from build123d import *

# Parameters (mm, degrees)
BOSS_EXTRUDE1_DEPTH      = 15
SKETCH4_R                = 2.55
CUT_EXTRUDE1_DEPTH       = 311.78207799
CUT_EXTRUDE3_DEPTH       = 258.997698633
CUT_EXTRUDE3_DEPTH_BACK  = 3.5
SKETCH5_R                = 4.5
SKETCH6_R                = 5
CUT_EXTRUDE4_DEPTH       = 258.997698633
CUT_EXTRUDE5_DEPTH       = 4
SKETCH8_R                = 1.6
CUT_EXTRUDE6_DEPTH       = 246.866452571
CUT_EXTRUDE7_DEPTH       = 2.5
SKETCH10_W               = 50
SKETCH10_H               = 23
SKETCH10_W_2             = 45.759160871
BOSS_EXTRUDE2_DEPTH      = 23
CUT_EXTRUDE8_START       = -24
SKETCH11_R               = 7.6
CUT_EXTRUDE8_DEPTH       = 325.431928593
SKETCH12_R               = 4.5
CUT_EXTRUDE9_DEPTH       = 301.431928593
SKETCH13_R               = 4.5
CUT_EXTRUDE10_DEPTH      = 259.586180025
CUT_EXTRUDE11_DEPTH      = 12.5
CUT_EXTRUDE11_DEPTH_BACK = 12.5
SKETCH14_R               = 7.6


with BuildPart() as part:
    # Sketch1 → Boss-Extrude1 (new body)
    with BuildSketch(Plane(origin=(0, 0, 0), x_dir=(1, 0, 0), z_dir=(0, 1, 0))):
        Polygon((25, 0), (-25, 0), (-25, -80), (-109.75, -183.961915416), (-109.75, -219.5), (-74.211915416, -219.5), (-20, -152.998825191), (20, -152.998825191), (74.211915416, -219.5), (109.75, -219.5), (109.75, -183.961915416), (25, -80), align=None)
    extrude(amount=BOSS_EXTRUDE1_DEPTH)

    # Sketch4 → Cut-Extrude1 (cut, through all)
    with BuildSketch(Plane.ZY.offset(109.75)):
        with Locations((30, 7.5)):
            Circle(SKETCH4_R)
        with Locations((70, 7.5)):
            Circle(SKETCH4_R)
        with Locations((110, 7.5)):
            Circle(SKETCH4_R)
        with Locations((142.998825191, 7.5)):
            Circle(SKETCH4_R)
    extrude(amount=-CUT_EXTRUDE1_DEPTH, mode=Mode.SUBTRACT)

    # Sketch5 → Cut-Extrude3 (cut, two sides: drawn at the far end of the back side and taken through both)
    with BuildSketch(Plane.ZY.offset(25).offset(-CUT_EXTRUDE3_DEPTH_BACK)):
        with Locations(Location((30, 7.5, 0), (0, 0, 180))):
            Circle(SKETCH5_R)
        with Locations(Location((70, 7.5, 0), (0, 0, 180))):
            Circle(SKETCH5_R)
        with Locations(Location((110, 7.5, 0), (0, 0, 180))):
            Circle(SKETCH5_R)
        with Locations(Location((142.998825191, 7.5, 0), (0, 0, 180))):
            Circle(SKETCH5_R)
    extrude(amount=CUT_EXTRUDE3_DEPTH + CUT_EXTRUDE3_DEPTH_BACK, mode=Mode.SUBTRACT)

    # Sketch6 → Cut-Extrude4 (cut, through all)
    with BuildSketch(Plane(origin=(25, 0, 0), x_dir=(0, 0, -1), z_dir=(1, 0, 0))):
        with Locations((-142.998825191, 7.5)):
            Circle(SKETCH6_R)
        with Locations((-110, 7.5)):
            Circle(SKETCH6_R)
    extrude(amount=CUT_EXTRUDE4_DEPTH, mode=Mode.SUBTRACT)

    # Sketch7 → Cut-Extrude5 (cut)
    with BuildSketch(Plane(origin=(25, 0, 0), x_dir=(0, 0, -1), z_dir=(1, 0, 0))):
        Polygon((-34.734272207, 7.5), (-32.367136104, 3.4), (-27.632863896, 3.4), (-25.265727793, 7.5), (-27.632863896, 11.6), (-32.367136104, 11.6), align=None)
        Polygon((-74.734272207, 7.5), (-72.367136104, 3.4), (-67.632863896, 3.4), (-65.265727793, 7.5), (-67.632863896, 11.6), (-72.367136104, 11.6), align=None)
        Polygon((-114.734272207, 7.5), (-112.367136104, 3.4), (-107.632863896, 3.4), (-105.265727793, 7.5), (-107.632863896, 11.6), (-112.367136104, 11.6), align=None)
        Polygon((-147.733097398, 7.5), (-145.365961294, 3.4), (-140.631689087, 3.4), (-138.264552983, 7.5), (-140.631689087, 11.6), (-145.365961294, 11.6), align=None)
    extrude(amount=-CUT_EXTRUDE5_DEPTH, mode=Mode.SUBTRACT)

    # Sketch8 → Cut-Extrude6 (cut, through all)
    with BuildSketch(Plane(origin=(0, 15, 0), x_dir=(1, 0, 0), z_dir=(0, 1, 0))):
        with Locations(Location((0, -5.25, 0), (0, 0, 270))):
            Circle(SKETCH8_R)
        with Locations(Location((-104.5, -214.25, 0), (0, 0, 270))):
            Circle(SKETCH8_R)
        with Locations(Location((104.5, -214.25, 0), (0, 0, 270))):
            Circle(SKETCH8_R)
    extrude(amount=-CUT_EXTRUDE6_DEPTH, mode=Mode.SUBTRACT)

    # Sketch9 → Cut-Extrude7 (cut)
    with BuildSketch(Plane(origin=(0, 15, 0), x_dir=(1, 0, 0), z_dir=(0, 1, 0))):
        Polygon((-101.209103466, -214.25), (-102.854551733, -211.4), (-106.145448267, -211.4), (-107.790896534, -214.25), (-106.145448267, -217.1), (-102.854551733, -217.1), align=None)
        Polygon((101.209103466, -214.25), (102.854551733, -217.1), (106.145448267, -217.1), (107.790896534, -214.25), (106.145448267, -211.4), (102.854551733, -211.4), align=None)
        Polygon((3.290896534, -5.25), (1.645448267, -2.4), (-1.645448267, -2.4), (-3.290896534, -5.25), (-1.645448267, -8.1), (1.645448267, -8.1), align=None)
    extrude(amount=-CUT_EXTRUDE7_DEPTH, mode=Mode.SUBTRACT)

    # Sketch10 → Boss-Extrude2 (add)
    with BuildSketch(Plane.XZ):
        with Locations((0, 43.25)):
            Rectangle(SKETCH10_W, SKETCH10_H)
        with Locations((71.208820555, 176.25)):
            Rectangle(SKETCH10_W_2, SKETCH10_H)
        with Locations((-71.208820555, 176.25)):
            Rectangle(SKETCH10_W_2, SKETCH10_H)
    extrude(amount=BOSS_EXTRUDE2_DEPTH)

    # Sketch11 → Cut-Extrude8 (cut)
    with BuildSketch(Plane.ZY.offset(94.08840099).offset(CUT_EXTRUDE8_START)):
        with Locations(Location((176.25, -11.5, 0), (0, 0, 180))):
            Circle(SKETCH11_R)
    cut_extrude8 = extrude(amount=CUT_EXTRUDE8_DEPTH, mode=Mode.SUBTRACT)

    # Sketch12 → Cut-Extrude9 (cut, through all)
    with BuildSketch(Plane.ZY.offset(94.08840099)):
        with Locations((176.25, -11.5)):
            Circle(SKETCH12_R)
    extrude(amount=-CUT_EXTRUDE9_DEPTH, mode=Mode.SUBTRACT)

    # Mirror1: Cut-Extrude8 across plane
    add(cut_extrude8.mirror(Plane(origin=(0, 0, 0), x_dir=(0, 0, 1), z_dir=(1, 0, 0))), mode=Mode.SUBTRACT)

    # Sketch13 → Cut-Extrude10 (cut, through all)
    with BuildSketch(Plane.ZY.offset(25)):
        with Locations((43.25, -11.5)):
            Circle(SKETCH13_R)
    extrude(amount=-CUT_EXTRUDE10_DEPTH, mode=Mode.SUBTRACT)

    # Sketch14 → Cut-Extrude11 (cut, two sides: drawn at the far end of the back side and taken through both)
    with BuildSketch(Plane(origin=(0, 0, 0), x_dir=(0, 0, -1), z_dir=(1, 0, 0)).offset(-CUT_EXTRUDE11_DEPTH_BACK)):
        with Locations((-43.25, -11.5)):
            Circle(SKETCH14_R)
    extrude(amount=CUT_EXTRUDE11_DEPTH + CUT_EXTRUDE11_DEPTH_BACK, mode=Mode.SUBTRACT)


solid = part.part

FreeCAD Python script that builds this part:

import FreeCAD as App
import Part
import Sketcher
from FreeCAD import Vector
Q = App.Units.Quantity


def add_polygon(sketch, points):
    """Adds a closed chain of lines whose ends are joined by coincident constraints."""
    first, n = sketch.GeometryCount, len(points)
    for a, b in zip(points, points[1:] + points[:1]):
        sketch.addGeometry(Part.LineSegment(App.Vector(*a, 0), App.Vector(*b, 0)), False)
    for i in range(n):
        sketch.addConstraint(Sketcher.Constraint("Coincident", first + i, 2, first + (i + 1) % n, 1))

doc = App.newDocument("Part")
body = doc.addObject("PartDesign::Body", "Body")

# Sketch on XZ plane
sketch1 = body.newObject("Sketcher::SketchObject", "Sketch")
sketch1.AttachmentSupport = (doc.getObject("XZ_Plane"), [""])
sketch1.MapMode = "FlatFace"
add_polygon(sketch1, [(25, 0), (-25, 0), (-25, 80), (-110, 184), (-110, 220), (-74, 220), (-20, 153), (20, 153), (74, 220), (110, 220), (110, 184), (25, 80)])  # lines 0-11
sketch1.addConstraint([
    Sketcher.Constraint("Horizontal", 0),
    Sketcher.Constraint("Vertical", 1),
    Sketcher.Constraint("Vertical", 3),
    Sketcher.Constraint("Horizontal", 4),
    Sketcher.Constraint("Horizontal", 6),
    Sketcher.Constraint("Horizontal", 8),
    Sketcher.Constraint("Vertical", 9),
    Sketcher.Constraint("Vertical", 11),
    Sketcher.Constraint("Symmetric", 0, 2, 11, 2, -1, 1),
    Sketcher.Constraint("Symmetric", 4, 2, 7, 2, -2),
    Sketcher.Constraint("Symmetric", 2, 2, 9, 2, -2),
    Sketcher.Constraint("Parallel", 2, 5),
    Sketcher.Constraint("Parallel", 7, 10),
    Sketcher.Constraint("Horizontal", 1, 2, 10, 2),
    Sketcher.Constraint("Equal", 8, 3),
    Sketcher.Constraint("DistanceX", 0, 2, 0, 1, Q("50 mm")),
    Sketcher.Constraint("DistanceX", 6, 1, 6, 2, Q("40 mm")),
    Sketcher.Constraint("DistanceY", 1, 1, 1, 2, Q("80 mm")),
    Sketcher.Constraint("DistanceY", -1, 1, 3, 2, Q("219.5 mm")),
    Sketcher.Constraint("DistanceX", 2, 2, -1, 1, Q("109.75 mm")),
    Sketcher.Constraint("Distance", 2, Q("134.1292 mm")),
])
pad1 = body.newObject("PartDesign::Pad", "Pad")
pad1.Profile = sketch1
pad1.Length = 15
pad1.Reversed = True

# Sketch on YZ plane
sketch2 = body.newObject("Sketcher::SketchObject", "Sketch001")
sketch2.AttachmentSupport = (doc.getObject("YZ_Plane"), [""])
sketch2.MapMode = "FlatFace"
sketch2.AttachmentOffset = App.Placement(Vector(0, 0, -109.75), App.Rotation())
sketch2.addGeometry([
    Part.Circle(Vector(7.5, 30, 0), Vector(0, 0, 1), 2.5),
    Part.Circle(Vector(7.5, 70, 0), Vector(0, 0, 1), 2.5),
    Part.Circle(Vector(7.5, 110, 0), Vector(0, 0, 1), 2.5),
    Part.Circle(Vector(7.5, 143, 0), Vector(0, 0, 1), 2.5),
], False)
sketch2.addConstraint([
    Sketcher.Constraint("Equal", 0, 1),
    Sketcher.Constraint("Equal", 1, 2),
    Sketcher.Constraint("Equal", 2, 3),
    Sketcher.Constraint("Vertical", 0, 3, 1, 3),
    Sketcher.Constraint("Vertical", 1, 3, 2, 3),
    Sketcher.Constraint("Vertical", 2, 3, 3, 3),
    Sketcher.Constraint("Diameter", 0, Q("5.1 mm")),
    Sketcher.Constraint("DistanceY", -1, 1, 0, 3, Q("30 mm")),
    Sketcher.Constraint("DistanceY", -1, 1, 1, 3, Q("70 mm")),
    Sketcher.Constraint("DistanceY", -1, 1, 2, 3, Q("110 mm")),
    Sketcher.Constraint("DistanceX", -1, 1, 0, 3, Q("7.5 mm")),
    Sketcher.Constraint("DistanceY", -1, 1, 3, 3, Q("142.998825 mm")),
])
pocket1 = body.newObject("PartDesign::Pocket", "Pocket")
pocket1.Profile = sketch2
pocket1.Type = "ThroughAll"
pocket1.Reversed = True

# Sketch on YZ plane
sketch3 = body.newObject("Sketcher::SketchObject", "Sketch002")
sketch3.AttachmentSupport = (doc.getObject("YZ_Plane"), [""])
sketch3.MapMode = "FlatFace"
sketch3.AttachmentOffset = App.Placement(Vector(0, 0, -25), App.Rotation())
sketch3.addGeometry([
    Part.Circle(Vector(7.5, 30, 0), Vector(0, 0, 1), 4.5),
    Part.Circle(Vector(7.5, 70, 0), Vector(0, 0, 1), 4.5),
    Part.Circle(Vector(7.5, 110, 0), Vector(0, 0, 1), 4.5),
    Part.Circle(Vector(7.5, 143, 0), Vector(0, 0, 1), 4.5),
], False)
sketch3.addConstraint([
    Sketcher.Constraint("Equal", 0, 1),
    Sketcher.Constraint("Equal", 1, 2),
    Sketcher.Constraint("Equal", 2, 3),
    Sketcher.Constraint("Vertical", 0, 3, 1, 3),
    Sketcher.Constraint("Vertical", 1, 3, 2, 3),
    Sketcher.Constraint("Vertical", 2, 3, 3, 3),
    Sketcher.Constraint("Diameter", 0, Q("9 mm")),
    Sketcher.Constraint("DistanceY", -1, 1, 0, 3, Q("30 mm")),
    Sketcher.Constraint("DistanceY", -1, 1, 1, 3, Q("70 mm")),
    Sketcher.Constraint("DistanceY", -1, 1, 2, 3, Q("110 mm")),
    Sketcher.Constraint("DistanceX", -1, 1, 0, 3, Q("7.5 mm")),
    Sketcher.Constraint("DistanceY", -1, 1, 3, 3, Q("142.998825 mm")),
])
pocket2 = body.newObject("PartDesign::Pocket", "Pocket001")
pocket2.Profile = sketch3
pocket2.Type = "TwoLengths"
pocket2.Length = 258.997699
pocket2.Length2 = 3.5

# Sketch on YZ plane
sketch4 = body.newObject("Sketcher::SketchObject", "Sketch003")
sketch4.AttachmentSupport = (doc.getObject("YZ_Plane"), [""])
sketch4.MapMode = "FlatFace"
sketch4.AttachmentOffset = App.Placement(Vector(0, 0, 25), App.Rotation())
sketch4.addGeometry([
    Part.Circle(Vector(8, 143, 0), Vector(0, 0, 1), 5),
    Part.Circle(Vector(8, 110, 0), Vector(0, 0, 1), 5),
], False)
sketch4.addConstraint([
    Sketcher.Constraint("Equal", 0, 1),
    Sketcher.Constraint("Vertical", 0, 3, 1, 3),
    Sketcher.Constraint("Diameter", 0, Q("10 mm")),
    Sketcher.Constraint("DistanceY", -1, 1, 1, 3, Q("110 mm")),
    Sketcher.Constraint("DistanceX", -1, 1, 0, 3, Q("7.5 mm")),
    Sketcher.Constraint("DistanceY", -1, 1, 0, 3, Q("142.998825 mm")),
])
pocket3 = body.newObject("PartDesign::Pocket", "Pocket002")
pocket3.Profile = sketch4
pocket3.Type = "ThroughAll"
pocket3.Reversed = True

# Sketch on YZ plane
sketch5 = body.newObject("Sketcher::SketchObject", "Sketch004")
sketch5.AttachmentSupport = (doc.getObject("YZ_Plane"), [""])
sketch5.MapMode = "FlatFace"
sketch5.AttachmentOffset = App.Placement(Vector(0, 0, 25), App.Rotation())
add_polygon(sketch5, [(7.5, 34.7), (3.4, 32.4), (3.4, 27.6), (7.5, 25.3), (11.6, 27.6), (11.6, 32.4)])  # lines 0-5
add_polygon(sketch5, [(7.5, 74.7), (3.4, 72.4), (3.4, 67.6), (7.5, 65.3), (11.6, 67.6), (11.6, 72.4)])  # lines 6-11
add_polygon(sketch5, [(7.5, 114.7), (3.4, 112.4), (3.4, 107.6), (7.5, 105.3), (11.6, 107.6), (11.6, 112.4)])  # lines 12-17
add_polygon(sketch5, [(7.5, 147.7), (3.4, 145.4), (3.4, 140.6), (7.5, 138.3), (11.6, 140.6), (11.6, 145.4)])  # lines 18-23
sketch5.addConstraint([
    Sketcher.Constraint("Vertical", 1),
    Sketcher.Constraint("Vertical", 4),
    Sketcher.Constraint("Vertical", 7),
    Sketcher.Constraint("Vertical", 10),
    Sketcher.Constraint("Vertical", 13),
    Sketcher.Constraint("Vertical", 16),
    Sketcher.Constraint("Vertical", 19),
    Sketcher.Constraint("Vertical", 22),
    Sketcher.Constraint("Parallel", 0, 3),
    Sketcher.Constraint("Parallel", 2, 5),
    Sketcher.Constraint("Parallel", 3, 6),
    Sketcher.Constraint("Parallel", 5, 8),
    Sketcher.Constraint("Parallel", 6, 9),
    Sketcher.Constraint("Parallel", 8, 11),
    Sketcher.Constraint("Parallel", 9, 12),
    Sketcher.Constraint("Parallel", 11, 14),
    Sketcher.Constraint("Parallel", 12, 15),
    Sketcher.Constraint("Parallel", 14, 17),
    Sketcher.Constraint("Parallel", 15, 18),
    Sketcher.Constraint("Parallel", 17, 20),
    Sketcher.Constraint("Parallel", 18, 21),
    Sketcher.Constraint("Parallel", 20, 23),
    Sketcher.Constraint("Horizontal", 1, 2, 3, 2),
    Sketcher.Constraint("Horizontal", 0, 2, 4, 2),
    Sketcher.Constraint("Horizontal", 7, 2, 9, 2),
    Sketcher.Constraint("Horizontal", 6, 2, 10, 2),
    Sketcher.Constraint("Horizontal", 13, 2, 15, 2),
    Sketcher.Constraint("Horizontal", 12, 2, 16, 2),
    Sketcher.Constraint("Horizontal", 19, 2, 21, 2),
    Sketcher.Constraint("Horizontal", 18, 2, 22, 2),
    Sketcher.Constraint("Vertical", 2, 2, 5, 2),
    Sketcher.Constraint("Vertical", 1, 2, 6, 2),
    Sketcher.Constraint("Vertical", 5, 2, 8, 2),
    Sketcher.Constraint("Vertical", 7, 2, 12, 2),
    Sketcher.Constraint("Vertical", 11, 2, 14, 2),
    Sketcher.Constraint("Vertical", 13, 2, 18, 2),
    Sketcher.Constraint("Vertical", 17, 2, 20, 2),
    Sketcher.Constraint("Equal", 4, 7),
    Sketcher.Constraint("Equal", 10, 13),
    Sketcher.Constraint("Equal", 16, 19),
    Sketcher.Constraint("Angle", 0, Q("-150 deg")),
    Sketcher.Constraint("DistanceY", 0, 2, 6, 2, Q("40 mm")),
    Sketcher.Constraint("DistanceY", 6, 2, 12, 2, Q("40 mm")),
    Sketcher.Constraint("DistanceX", -1, 1, 0, 2, Q("3.4 mm")),
    Sketcher.Constraint("DistanceX", -1, 1, 2, 2, Q("7.5 mm")),
    Sketcher.Constraint("DistanceY", 1, 2, 1, 1, Q("4.734272 mm")),
    Sketcher.Constraint("DistanceY", -1, 1, 18, 2, Q("145.365961 mm")),
    Sketcher.Constraint("DistanceY", 17, 2, 18, 2, Q("30.631689 mm")),
])
pocket4 = body.newObject("PartDesign::Pocket", "Pocket003")
pocket4.Profile = sketch5
pocket4.Length = 4

# Sketch on XZ plane
sketch6 = body.newObject("Sketcher::SketchObject", "Sketch005")
sketch6.AttachmentSupport = (doc.getObject("XZ_Plane"), [""])
sketch6.MapMode = "FlatFace"
sketch6.AttachmentOffset = App.Placement(Vector(0, 0, -15), App.Rotation())
sketch6.addGeometry([
    Part.Circle(Vector(0, 5.2, 0), Vector(0, 0, 1), 1.6),
    Part.Circle(Vector(-104.5, 214.2, 0), Vector(0, 0, 1), 1.6),
    Part.Circle(Vector(104.5, 214.2, 0), Vector(0, 0, 1), 1.6),
], False)
sketch6.addConstraint([
    Sketcher.Constraint("Equal", 0, 1),
    Sketcher.Constraint("Equal", 1, 2),
    Sketcher.Constraint("Symmetric", 1, 3, 2, 3, -2),
    Sketcher.Constraint("PointOnObject", 0, 3, -2),
    Sketcher.Constraint("Diameter", 0, Q("3.2 mm")),
    Sketcher.Constraint("DistanceY", 0, 3, 1, 3, Q("209 mm")),
    Sketcher.Constraint("DistanceX", 1, 3, 2, 3, Q("209 mm")),
    Sketcher.Constraint("DistanceY", -1, 1, 0, 3, Q("5.25 mm")),
])
pocket5 = body.newObject("PartDesign::Pocket", "Pocket004")
pocket5.Profile = sketch6
pocket5.Type = "ThroughAll"
pocket5.Reversed = True

# Sketch on XZ plane
sketch7 = body.newObject("Sketcher::SketchObject", "Sketch006")
sketch7.AttachmentSupport = (doc.getObject("XZ_Plane"), [""])
sketch7.MapMode = "FlatFace"
sketch7.AttachmentOffset = App.Placement(Vector(0, 0, -15), App.Rotation())
add_polygon(sketch7, [(-101.2, 214.2), (-102.9, 211.4), (-106.1, 211.4), (-107.8, 214.2), (-106.1, 217.1), (-102.9, 217.1)])  # lines 0-5
add_polygon(sketch7, [(101.2, 214.2), (102.9, 217.1), (106.1, 217.1), (107.8, 214.2), (106.1, 211.4), (102.9, 211.4)])  # lines 6-11
add_polygon(sketch7, [(3.3, 5.2), (1.6, 2.4), (-1.6, 2.4), (-3.3, 5.2), (-1.6, 8.1), (1.6, 8.1)])  # lines 12-17
sketch7.addConstraint([
    Sketcher.Constraint("Horizontal", 1),
    Sketcher.Constraint("Horizontal", 4),
    Sketcher.Constraint("Horizontal", 7),
    Sketcher.Constraint("Horizontal", 10),
    Sketcher.Constraint("Horizontal", 13),
    Sketcher.Constraint("Horizontal", 16),
    Sketcher.Constraint("Symmetric", 4, 2, 6, 2, -2),
    Sketcher.Constraint("Symmetric", 2, 2, 8, 2, -2),
    Sketcher.Constraint("Symmetric", 1, 2, 9, 2, -2),
    Sketcher.Constraint("Symmetric", 5, 2, 11, 2, -2),
    Sketcher.Constraint("Symmetric", 14, 2, 17, 2, -2),
    Sketcher.Constraint("Parallel", 0, 3),
    Sketcher.Constraint("Parallel", 2, 5),
    Sketcher.Constraint("Parallel", 3, 6),
    Sketcher.Constraint("Parallel", 5, 8),
    Sketcher.Constraint("Parallel", 8, 11),
    Sketcher.Constraint("Parallel", 9, 12),
    Sketcher.Constraint("Parallel", 11, 14),
    Sketcher.Constraint("Parallel", 12, 15),
    Sketcher.Constraint("Parallel", 14, 17),
    Sketcher.Constraint("Horizontal", 2, 2, 5, 2),
    Sketcher.Constraint("Vertical", 1, 2, 3, 2),
    Sketcher.Constraint("Vertical", 13, 2, 15, 2),
    Sketcher.Constraint("Equal", 10, 13),
    Sketcher.Constraint("Equal", 11, 12),
    Sketcher.Constraint("Angle", 0, Q("-120 deg")),
    Sketcher.Constraint("DistanceX", 3, 2, 6, 2, Q("209 mm")),
    Sketcher.Constraint("DistanceY", 12, 2, 10, 2, Q("209 mm")),
    Sketcher.Constraint("DistanceY", -1, 1, 0, 2, Q("211.4 mm")),
    Sketcher.Constraint("DistanceY", -1, 1, 3, 2, Q("217.1 mm")),
    Sketcher.Constraint("DistanceX", 1, 2, 1, 1, Q("3.290897 mm")),
])
pocket6 = body.newObject("PartDesign::Pocket", "Pocket005")
pocket6.Profile = sketch7
pocket6.Length = 2.5
pocket6.Reversed = True

# Sketch on XZ plane
sketch8 = body.newObject("Sketcher::SketchObject", "Sketch007")
sketch8.AttachmentSupport = (doc.getObject("XZ_Plane"), [""])
sketch8.MapMode = "FlatFace"
add_polygon(sketch8, [(-25, 55), (-25, 32), (25, 32), (25, 55)])  # lines 0-3
add_polygon(sketch8, [(48, 188), (48, 165), (94, 165), (94, 188)])  # lines 4-7
add_polygon(sketch8, [(-94, 188), (-94, 165), (-48, 165), (-48, 188)])  # lines 8-11
sketch8.addConstraint([
    Sketcher.Constraint("Vertical", 0),
    Sketcher.Constraint("Horizontal", 1),
    Sketcher.Constraint("Vertical", 2),
    Sketcher.Constraint("Horizontal", 3),
    Sketcher.Constraint("Vertical", 4),
    Sketcher.Constraint("Horizontal", 5),
    Sketcher.Constraint("Vertical", 6),
    Sketcher.Constraint("Horizontal", 7),
    Sketcher.Constraint("Vertical", 8),
    Sketcher.Constraint("Horizontal", 9),
    Sketcher.Constraint("Vertical", 10),
    Sketcher.Constraint("Horizontal", 11),
    Sketcher.Constraint("Symmetric", 5, 2, 8, 2, -2),
    Sketcher.Constraint("Symmetric", 7, 2, 10, 2, -2),
    Sketcher.Constraint("Equal", 2, 4),
    Sketcher.Constraint("DistanceX", 1, 1, 1, 2, Q("50 mm")),
    Sketcher.Constraint("DistanceY", 0, 2, 0, 1, Q("23 mm")),
    Sketcher.Constraint("DistanceX", 0, 2, -1, 1, Q("25 mm")),
    Sketcher.Constraint("DistanceY", 2, 2, 4, 2, Q("110 mm")),
    Sketcher.Constraint("DistanceY", -1, 1, 0, 2, Q("31.75 mm")),
    Sketcher.Constraint("DistanceX", 5, 1, 5, 2, Q("45.759161 mm")),
    Sketcher.Constraint("DistanceX", -1, 1, 5, 2, Q("94.088401 mm")),
])
pad2 = body.newObject("PartDesign::Pad", "Pad001")
pad2.Profile = sketch8
pad2.Length = 23

# Sketch on YZ plane
sketch9 = body.newObject("Sketcher::SketchObject", "Sketch008")
sketch9.AttachmentSupport = (doc.getObject("YZ_Plane"), [""])
sketch9.MapMode = "FlatFace"
sketch9.AttachmentOffset = App.Placement(Vector(0, 0, -70.088401), App.Rotation())
sketch9.addGeometry(Part.Circle(Vector(-12, 176, 0), Vector(0, 0, 1), 8), False)
sketch9.addConstraint([
    Sketcher.Constraint("Diameter", 0, Q("15.2 mm")),
    Sketcher.Constraint("DistanceX", 0, 3, -1, 1, Q("11.5 mm")),
    Sketcher.Constraint("DistanceY", -1, 1, 0, 3, Q("176.25 mm")),
])
pocket7 = body.newObject("PartDesign::Pocket", "Pocket006")
pocket7.Profile = sketch9
pocket7.Length = 325.431929

# Sketch on YZ plane
sketch10 = body.newObject("Sketcher::SketchObject", "Sketch009")
sketch10.AttachmentSupport = (doc.getObject("YZ_Plane"), [""])
sketch10.MapMode = "FlatFace"
sketch10.AttachmentOffset = App.Placement(Vector(0, 0, -94.088401), App.Rotation())
sketch10.addGeometry(Part.Circle(Vector(-11.5, 176.2, 0), Vector(0, 0, 1), 4.5), False)
sketch10.addConstraint([
    Sketcher.Constraint("Diameter", 0, Q("9 mm")),
    Sketcher.Constraint("DistanceX", 0, 3, -1, 1, Q("11.5 mm")),
    Sketcher.Constraint("DistanceY", -1, 1, 0, 3, Q("176.25 mm")),
])
pocket8 = body.newObject("PartDesign::Pocket", "Pocket007")
pocket8.Profile = sketch10
pocket8.Type = "ThroughAll"
pocket8.Reversed = True
doc.recompute()

mirrored = body.newObject("PartDesign::Mirrored", "Mirrored")
mirrored.Originals = [pocket7]
mirrored.MirrorPlane = (doc.getObject("YZ_Plane"), [""])
body.Tip = mirrored

# Sketch on YZ plane
sketch11 = body.newObject("Sketcher::SketchObject", "Sketch010")
sketch11.AttachmentSupport = (doc.getObject("YZ_Plane"), [""])
sketch11.MapMode = "FlatFace"
sketch11.AttachmentOffset = App.Placement(Vector(0, 0, -25), App.Rotation())
sketch11.addGeometry(Part.Circle(Vector(-11.5, 43.2, 0), Vector(0, 0, 1), 4.5), False)
sketch11.addConstraint([
    Sketcher.Constraint("Diameter", 0, Q("9 mm")),
    Sketcher.Constraint("DistanceX", 0, 3, -1, 1, Q("11.5 mm")),
    Sketcher.Constraint("DistanceY", -1, 1, 0, 3, Q("43.25 mm")),
])
pocket9 = body.newObject("PartDesign::Pocket", "Pocket008")
pocket9.Profile = sketch11
pocket9.Type = "ThroughAll"
pocket9.Reversed = True

# Sketch on YZ plane
sketch12 = body.newObject("Sketcher::SketchObject", "Sketch011")
sketch12.AttachmentSupport = (doc.getObject("YZ_Plane"), [""])
sketch12.MapMode = "FlatFace"
sketch12.addGeometry(Part.Circle(Vector(-12, 43, 0), Vector(0, 0, 1), 8), False)
sketch12.addConstraint([
    Sketcher.Constraint("Diameter", 0, Q("15.2 mm")),
    Sketcher.Constraint("DistanceX", 0, 3, -1, 1, Q("11.5 mm")),
    Sketcher.Constraint("DistanceY", -1, 1, 0, 3, Q("43.25 mm")),
])
pocket10 = body.newObject("PartDesign::Pocket", "Pocket009")
pocket10.Profile = sketch12
pocket10.Type = "TwoLengths"
pocket10.Length = 12.5
pocket10.Length2 = 12.5
pocket10.Reversed = True

doc.recompute()
